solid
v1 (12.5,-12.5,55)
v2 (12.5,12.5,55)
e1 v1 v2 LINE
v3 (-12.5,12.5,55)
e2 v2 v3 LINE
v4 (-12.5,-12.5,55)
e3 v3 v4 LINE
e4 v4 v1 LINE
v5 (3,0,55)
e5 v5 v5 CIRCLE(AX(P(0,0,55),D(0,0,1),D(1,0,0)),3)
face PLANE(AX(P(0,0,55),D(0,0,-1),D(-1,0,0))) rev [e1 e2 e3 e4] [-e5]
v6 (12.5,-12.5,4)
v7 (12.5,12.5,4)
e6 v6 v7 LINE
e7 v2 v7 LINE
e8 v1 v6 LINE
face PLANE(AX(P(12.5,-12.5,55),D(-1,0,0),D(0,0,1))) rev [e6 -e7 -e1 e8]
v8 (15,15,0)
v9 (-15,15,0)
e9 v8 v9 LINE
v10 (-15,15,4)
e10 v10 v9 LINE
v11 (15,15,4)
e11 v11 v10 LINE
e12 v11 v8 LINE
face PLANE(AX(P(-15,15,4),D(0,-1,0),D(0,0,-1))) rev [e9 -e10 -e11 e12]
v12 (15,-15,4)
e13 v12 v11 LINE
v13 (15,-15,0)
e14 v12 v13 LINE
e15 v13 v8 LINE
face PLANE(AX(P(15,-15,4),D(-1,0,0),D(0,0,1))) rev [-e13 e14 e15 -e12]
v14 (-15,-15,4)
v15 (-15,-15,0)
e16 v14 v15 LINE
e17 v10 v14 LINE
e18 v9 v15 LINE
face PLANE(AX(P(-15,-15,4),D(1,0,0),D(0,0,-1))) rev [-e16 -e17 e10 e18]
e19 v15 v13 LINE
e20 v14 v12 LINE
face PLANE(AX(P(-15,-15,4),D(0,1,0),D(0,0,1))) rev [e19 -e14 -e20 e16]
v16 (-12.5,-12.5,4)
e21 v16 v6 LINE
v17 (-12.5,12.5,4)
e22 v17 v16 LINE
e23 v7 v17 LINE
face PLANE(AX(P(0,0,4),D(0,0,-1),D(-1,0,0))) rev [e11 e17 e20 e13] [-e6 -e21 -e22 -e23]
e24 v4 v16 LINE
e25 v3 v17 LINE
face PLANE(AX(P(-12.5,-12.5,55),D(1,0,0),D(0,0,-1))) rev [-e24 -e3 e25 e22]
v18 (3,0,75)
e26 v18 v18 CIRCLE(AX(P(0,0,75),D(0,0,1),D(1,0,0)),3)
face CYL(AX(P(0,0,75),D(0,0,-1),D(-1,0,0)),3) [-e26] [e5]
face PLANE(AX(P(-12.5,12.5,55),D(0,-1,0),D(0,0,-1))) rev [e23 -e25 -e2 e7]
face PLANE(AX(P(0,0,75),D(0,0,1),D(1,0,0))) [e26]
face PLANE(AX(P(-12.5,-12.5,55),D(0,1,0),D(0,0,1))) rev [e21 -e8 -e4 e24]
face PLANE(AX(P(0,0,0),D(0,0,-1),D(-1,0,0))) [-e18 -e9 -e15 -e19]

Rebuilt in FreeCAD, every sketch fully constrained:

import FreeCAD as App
import Part
import Sketcher

V = App.Vector
Q = App.Units.Quantity


def add_polygon(sketch, points):
    """Adds a closed chain of lines whose ends are joined by coincident constraints."""
    first, n = sketch.GeometryCount, len(points)
    for a, b in zip(points, points[1:] + points[:1]):
        sketch.addGeometry(Part.LineSegment(App.Vector(*a, 0), App.Vector(*b, 0)), False)
    for i in range(n):
        sketch.addConstraint(Sketcher.Constraint("Coincident", first + i, 2, first + (i + 1) % n, 1))

doc = App.newDocument("Part")
body = doc.addObject("PartDesign::Body", "Body")

# Sketch on XY plane
sketch1 = body.newObject("Sketcher::SketchObject", "Sketch")
sketch1.AttachmentSupport = (doc.getObject("XY_Plane"), [""])
sketch1.MapMode = "FlatFace"
add_polygon(sketch1, [(-15, 15), (-15, -15), (15, -15), (15, 15)])  # lines 0-3
sketch1.addConstraint([
    Sketcher.Constraint("Vertical", 0),
    Sketcher.Constraint("Horizontal", 1),
    Sketcher.Constraint("Vertical", 2),
    Sketcher.Constraint("Horizontal", 3),
    Sketcher.Constraint("Symmetric", 0, 2, 2, 2, -1, 1),
    Sketcher.Constraint("Equal", 3, 0),
    Sketcher.Constraint("DistanceX", 1, 1, 1, 2, Q("30 mm")),
])
pad1 = body.newObject("PartDesign::Pad", "Pad")
pad1.Profile = sketch1
pad1.Length = 4

# Sketch on XY plane
sketch2 = body.newObject("Sketcher::SketchObject", "Sketch001")
sketch2.AttachmentSupport = (doc.getObject("XY_Plane"), [""])
sketch2.MapMode = "FlatFace"
sketch2.AttachmentOffset = App.Placement(V(0, 0, 4), App.Rotation())
add_polygon(sketch2, [(-12.5, 12.5), (-12.5, -12.5), (12.5, -12.5), (12.5, 12.5)])  # lines 0-3
sketch2.addConstraint([
    Sketcher.Constraint("Vertical", 0),
    Sketcher.Constraint("Horizontal", 1),
    Sketcher.Constraint("Vertical", 2),
    Sketcher.Constraint("Horizontal", 3),
    Sketcher.Constraint("Symmetric", 0, 2, 2, 2, -1, 1),
    Sketcher.Constraint("Equal", 3, 0),
    Sketcher.Constraint("DistanceX", 1, 1, 1, 2, Q("25 mm")),
])
pad2 = body.newObject("PartDesign::Pad", "Pad001")
pad2.Profile = sketch2
pad2.Length = 51

# Sketch on XY plane
sketch3 = body.newObject("Sketcher::SketchObject", "Sketch002")
sketch3.AttachmentSupport = (doc.getObject("XY_Plane"), [""])
sketch3.MapMode = "FlatFace"
sketch3.AttachmentOffset = App.Placement(V(0, 0, 55), App.Rotation())
sketch3.addGeometry(Part.Circle(V(0, 0, 0), V(0, 0, 1), 3), False)
sketch3.addConstraint([
    Sketcher.Constraint("Coincident", 0, 3, -1, 1),
    Sketcher.Constraint("Diameter", 0, Q("6 mm")),
])
pad3 = body.newObject("PartDesign::Pad", "Pad002")
pad3.Profile = sketch3
pad3.Length = 20

doc.recompute()
